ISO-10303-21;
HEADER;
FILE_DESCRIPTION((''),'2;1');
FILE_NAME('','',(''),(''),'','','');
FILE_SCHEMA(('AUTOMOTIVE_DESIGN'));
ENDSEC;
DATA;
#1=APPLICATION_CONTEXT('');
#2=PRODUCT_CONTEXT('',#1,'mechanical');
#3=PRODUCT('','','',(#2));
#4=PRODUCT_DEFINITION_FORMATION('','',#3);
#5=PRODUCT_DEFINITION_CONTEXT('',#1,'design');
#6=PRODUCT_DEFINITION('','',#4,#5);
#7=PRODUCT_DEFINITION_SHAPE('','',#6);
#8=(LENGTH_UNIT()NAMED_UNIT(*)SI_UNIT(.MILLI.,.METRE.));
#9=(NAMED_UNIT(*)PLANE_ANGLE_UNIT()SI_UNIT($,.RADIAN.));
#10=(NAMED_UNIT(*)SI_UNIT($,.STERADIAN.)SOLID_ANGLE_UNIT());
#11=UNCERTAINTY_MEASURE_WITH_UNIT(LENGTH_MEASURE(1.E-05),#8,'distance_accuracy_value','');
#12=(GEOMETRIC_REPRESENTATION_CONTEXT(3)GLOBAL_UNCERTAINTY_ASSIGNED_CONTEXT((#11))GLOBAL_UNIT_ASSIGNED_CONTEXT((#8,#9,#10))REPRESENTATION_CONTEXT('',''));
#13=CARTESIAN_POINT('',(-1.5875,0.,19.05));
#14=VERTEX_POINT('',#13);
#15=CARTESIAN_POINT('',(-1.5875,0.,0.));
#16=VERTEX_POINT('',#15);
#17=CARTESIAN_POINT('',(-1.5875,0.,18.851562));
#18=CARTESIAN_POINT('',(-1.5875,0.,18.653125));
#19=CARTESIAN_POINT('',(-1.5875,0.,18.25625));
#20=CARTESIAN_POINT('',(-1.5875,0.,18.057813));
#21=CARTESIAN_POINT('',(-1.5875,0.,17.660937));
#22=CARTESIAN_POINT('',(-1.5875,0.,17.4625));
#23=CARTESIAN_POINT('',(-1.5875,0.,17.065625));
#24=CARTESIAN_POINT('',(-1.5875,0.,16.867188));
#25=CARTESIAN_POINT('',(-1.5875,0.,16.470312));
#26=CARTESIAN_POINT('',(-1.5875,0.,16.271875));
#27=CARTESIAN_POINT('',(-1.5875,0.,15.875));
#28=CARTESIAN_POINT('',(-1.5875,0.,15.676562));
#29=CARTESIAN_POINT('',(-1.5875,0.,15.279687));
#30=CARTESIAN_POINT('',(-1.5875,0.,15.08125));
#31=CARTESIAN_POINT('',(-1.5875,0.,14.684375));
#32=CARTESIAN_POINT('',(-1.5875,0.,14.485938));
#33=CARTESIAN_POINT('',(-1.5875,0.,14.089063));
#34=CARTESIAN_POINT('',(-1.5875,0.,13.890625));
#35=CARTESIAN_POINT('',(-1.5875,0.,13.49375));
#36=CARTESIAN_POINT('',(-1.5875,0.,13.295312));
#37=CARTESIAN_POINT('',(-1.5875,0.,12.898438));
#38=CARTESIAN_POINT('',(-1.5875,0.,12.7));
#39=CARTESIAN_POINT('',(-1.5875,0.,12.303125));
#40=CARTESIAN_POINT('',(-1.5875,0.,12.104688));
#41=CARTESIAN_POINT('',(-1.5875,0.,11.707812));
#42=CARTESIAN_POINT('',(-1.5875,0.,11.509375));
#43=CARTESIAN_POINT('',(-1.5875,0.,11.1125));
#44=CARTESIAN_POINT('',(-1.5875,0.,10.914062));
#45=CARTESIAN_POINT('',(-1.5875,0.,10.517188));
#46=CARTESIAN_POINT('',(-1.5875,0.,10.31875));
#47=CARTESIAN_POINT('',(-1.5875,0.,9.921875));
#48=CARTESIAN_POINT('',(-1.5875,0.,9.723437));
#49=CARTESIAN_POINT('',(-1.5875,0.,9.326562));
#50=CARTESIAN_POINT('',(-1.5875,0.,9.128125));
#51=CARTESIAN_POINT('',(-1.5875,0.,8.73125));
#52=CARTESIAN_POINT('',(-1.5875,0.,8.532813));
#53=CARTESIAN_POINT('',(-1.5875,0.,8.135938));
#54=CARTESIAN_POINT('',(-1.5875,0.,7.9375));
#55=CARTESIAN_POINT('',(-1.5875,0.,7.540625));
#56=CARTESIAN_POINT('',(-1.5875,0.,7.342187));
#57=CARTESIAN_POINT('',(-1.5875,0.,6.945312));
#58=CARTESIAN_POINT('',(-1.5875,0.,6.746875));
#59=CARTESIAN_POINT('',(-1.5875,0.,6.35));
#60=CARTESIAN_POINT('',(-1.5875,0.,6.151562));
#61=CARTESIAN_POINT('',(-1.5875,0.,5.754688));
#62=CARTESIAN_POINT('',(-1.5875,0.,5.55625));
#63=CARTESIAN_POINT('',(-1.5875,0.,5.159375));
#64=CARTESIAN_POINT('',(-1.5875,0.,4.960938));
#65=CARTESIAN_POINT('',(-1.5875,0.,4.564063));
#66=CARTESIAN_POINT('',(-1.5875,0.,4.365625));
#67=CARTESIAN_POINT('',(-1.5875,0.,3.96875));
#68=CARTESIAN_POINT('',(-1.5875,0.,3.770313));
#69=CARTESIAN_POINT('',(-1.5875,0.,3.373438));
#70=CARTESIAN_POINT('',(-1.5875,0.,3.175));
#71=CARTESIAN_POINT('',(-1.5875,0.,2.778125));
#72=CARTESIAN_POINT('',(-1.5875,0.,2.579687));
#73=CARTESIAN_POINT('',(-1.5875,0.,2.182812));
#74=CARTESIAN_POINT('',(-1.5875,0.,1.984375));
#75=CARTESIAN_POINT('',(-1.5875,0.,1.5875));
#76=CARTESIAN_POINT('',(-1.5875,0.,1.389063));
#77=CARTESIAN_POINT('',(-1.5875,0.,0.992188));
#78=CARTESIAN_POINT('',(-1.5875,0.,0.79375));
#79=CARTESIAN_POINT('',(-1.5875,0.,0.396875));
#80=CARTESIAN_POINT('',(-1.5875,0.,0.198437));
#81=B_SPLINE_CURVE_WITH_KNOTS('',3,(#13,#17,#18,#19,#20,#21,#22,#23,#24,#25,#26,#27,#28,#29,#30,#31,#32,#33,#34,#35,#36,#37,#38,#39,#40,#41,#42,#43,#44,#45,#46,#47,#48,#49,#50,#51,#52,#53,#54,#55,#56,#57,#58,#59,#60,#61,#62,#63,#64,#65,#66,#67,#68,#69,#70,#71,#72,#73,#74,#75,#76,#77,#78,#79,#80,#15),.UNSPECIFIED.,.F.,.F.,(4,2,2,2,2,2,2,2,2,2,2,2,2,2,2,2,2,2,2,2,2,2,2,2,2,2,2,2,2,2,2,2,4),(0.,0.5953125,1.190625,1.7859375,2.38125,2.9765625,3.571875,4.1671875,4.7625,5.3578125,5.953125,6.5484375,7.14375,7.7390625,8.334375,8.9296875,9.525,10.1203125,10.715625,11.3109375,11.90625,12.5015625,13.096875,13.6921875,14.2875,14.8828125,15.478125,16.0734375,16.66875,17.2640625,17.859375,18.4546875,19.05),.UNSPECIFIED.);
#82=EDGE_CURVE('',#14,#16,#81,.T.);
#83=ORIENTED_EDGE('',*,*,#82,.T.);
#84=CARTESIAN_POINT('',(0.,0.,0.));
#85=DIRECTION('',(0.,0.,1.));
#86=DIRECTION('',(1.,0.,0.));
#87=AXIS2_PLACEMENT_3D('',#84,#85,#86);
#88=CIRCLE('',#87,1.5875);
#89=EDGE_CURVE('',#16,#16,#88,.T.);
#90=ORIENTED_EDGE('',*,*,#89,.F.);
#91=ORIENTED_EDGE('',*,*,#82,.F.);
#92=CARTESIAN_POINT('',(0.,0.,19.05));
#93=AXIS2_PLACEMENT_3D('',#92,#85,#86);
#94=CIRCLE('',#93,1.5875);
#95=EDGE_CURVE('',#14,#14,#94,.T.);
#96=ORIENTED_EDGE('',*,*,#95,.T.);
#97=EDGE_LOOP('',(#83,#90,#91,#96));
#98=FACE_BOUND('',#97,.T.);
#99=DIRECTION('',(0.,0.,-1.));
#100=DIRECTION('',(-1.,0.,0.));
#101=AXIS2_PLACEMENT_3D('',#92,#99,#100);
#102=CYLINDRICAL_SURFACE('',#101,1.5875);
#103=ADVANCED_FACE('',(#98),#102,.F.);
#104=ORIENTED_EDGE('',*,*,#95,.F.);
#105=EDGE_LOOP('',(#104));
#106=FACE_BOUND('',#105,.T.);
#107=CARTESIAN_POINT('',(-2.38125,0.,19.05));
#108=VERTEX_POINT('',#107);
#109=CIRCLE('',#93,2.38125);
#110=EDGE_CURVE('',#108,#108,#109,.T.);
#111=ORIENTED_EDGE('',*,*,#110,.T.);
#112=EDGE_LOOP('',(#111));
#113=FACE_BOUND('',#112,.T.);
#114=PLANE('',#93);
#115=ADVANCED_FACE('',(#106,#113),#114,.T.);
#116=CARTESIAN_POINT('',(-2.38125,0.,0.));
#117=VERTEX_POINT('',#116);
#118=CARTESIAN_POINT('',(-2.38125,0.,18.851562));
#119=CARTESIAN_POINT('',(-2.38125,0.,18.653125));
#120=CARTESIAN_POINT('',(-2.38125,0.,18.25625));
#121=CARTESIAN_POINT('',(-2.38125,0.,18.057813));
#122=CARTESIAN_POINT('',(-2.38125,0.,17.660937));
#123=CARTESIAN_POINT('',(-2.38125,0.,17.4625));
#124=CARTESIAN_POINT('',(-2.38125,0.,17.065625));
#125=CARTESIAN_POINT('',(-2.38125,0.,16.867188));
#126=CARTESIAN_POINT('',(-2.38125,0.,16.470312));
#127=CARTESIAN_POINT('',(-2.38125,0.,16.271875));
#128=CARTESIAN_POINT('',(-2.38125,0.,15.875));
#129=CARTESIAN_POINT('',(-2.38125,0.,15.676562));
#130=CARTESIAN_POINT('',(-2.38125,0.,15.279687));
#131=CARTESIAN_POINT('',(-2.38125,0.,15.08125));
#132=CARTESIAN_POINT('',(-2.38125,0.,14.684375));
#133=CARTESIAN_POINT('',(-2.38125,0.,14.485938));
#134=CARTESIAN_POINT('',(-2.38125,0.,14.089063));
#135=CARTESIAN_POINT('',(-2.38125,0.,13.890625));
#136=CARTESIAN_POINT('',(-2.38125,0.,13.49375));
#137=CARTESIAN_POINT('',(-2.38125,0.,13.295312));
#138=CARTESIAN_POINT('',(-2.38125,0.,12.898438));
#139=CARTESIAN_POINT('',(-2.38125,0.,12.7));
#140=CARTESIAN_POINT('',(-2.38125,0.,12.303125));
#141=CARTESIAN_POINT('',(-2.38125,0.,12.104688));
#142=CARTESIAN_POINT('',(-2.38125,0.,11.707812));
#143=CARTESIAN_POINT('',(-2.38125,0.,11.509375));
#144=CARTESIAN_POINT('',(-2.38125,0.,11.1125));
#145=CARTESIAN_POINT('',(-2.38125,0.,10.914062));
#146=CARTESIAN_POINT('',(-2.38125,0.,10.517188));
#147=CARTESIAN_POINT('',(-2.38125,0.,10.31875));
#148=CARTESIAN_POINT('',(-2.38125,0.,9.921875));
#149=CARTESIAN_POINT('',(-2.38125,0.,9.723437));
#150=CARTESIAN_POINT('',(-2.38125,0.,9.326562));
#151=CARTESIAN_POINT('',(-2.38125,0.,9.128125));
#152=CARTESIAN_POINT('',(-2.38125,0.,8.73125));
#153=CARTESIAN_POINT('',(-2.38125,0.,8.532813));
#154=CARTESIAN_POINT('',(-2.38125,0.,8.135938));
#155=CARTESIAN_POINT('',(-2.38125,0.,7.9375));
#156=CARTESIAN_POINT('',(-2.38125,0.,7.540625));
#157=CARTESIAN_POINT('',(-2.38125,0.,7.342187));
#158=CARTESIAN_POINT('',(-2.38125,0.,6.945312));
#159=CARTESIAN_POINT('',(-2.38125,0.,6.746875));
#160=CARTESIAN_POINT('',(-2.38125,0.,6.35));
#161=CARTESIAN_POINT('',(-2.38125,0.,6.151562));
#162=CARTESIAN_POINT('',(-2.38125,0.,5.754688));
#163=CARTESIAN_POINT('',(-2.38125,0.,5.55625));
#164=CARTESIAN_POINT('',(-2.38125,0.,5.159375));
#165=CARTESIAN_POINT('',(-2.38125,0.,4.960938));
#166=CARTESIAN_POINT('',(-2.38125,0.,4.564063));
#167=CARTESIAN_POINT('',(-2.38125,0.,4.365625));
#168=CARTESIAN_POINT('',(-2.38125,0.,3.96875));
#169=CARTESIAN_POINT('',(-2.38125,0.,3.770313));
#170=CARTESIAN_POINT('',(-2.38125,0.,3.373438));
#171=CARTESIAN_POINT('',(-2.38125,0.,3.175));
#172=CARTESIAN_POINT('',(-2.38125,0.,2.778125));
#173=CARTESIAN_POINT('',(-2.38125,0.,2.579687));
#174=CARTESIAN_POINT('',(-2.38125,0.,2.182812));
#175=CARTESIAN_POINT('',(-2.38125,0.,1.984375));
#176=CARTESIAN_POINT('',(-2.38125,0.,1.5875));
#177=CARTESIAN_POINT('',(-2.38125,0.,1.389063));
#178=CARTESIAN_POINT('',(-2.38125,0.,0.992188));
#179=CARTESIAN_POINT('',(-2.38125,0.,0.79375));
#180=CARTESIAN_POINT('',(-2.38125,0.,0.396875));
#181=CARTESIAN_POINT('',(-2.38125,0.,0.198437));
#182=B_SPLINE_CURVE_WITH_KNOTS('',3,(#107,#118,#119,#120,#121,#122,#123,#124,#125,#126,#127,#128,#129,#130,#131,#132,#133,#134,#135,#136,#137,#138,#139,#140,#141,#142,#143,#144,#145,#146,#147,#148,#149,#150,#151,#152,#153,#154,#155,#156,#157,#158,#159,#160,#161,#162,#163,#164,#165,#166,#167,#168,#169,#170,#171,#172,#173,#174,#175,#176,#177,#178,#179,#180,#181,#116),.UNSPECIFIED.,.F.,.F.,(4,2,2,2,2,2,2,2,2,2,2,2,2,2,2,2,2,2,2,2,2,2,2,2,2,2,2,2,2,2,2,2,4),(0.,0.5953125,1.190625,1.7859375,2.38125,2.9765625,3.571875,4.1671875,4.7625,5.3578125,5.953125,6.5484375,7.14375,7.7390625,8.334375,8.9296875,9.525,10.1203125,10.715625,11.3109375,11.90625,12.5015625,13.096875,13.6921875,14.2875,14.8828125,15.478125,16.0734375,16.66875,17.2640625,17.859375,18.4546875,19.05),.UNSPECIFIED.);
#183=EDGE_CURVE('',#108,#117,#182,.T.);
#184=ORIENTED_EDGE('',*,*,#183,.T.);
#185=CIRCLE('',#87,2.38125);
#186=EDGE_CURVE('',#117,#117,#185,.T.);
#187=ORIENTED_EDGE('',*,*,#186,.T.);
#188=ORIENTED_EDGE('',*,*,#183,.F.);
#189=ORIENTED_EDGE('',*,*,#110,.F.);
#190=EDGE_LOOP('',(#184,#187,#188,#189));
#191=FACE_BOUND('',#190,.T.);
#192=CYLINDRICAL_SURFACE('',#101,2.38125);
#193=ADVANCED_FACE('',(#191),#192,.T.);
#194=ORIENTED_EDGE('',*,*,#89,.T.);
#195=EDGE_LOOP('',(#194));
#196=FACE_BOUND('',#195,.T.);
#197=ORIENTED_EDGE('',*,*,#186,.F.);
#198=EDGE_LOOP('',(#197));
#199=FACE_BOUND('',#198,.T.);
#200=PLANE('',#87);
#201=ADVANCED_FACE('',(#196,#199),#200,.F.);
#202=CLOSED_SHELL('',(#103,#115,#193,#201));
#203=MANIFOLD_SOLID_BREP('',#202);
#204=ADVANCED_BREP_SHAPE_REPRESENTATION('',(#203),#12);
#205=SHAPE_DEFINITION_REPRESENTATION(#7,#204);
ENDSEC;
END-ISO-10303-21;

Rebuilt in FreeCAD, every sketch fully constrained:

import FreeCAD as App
import Part
import Sketcher
Q = App.Units.Quantity

doc = App.newDocument("Part")
params = doc.addObject("Spreadsheet::Sheet", "Params")
for row, (alias, value) in enumerate([
    ("sketch1_diameter", "0.1875 in"),
    ("sketch1_diameter2", "0.125 in"),
    ("pad1_length", "0.75 in"),
], start=1):
    params.set(f"A{row}", alias)
    params.set(f"B{row}", "=" + value)
    params.setAlias(f"B{row}", alias)

body = doc.addObject("PartDesign::Body", "Body")

# Sketch on XY plane
sketch1 = body.newObject("Sketcher::SketchObject", "Sketch")
sketch1.AttachmentSupport = (doc.getObject("XY_Plane"), [""])
sketch1.MapMode = "FlatFace"
sketch1.addGeometry(Part.Circle(App.Vector(0, 0, 0), App.Vector(0, 0, 1), 2.4), False)
sketch1.addGeometry(Part.Circle(App.Vector(0, 0, 0), App.Vector(0, 0, 1), 1.6), False)
sketch1.addConstraint(Sketcher.Constraint("Coincident", 0, 3, -1, 1))
sketch1.addConstraint(Sketcher.Constraint("Coincident", 1, 3, -1, 1))
sketch1.addConstraint(Sketcher.Constraint("Diameter", 0, Q("0.1875 in")))
sketch1.addConstraint(Sketcher.Constraint("Diameter", 1, Q("0.125 in")))
sketch1.setExpression("Constraints[2]", "Params.sketch1_diameter")
sketch1.setExpression("Constraints[3]", "Params.sketch1_diameter2")
pad1 = body.newObject("PartDesign::Pad", "Pad")
pad1.Profile = sketch1
pad1.setExpression("Length", "Params.pad1_length")

doc.recompute()
